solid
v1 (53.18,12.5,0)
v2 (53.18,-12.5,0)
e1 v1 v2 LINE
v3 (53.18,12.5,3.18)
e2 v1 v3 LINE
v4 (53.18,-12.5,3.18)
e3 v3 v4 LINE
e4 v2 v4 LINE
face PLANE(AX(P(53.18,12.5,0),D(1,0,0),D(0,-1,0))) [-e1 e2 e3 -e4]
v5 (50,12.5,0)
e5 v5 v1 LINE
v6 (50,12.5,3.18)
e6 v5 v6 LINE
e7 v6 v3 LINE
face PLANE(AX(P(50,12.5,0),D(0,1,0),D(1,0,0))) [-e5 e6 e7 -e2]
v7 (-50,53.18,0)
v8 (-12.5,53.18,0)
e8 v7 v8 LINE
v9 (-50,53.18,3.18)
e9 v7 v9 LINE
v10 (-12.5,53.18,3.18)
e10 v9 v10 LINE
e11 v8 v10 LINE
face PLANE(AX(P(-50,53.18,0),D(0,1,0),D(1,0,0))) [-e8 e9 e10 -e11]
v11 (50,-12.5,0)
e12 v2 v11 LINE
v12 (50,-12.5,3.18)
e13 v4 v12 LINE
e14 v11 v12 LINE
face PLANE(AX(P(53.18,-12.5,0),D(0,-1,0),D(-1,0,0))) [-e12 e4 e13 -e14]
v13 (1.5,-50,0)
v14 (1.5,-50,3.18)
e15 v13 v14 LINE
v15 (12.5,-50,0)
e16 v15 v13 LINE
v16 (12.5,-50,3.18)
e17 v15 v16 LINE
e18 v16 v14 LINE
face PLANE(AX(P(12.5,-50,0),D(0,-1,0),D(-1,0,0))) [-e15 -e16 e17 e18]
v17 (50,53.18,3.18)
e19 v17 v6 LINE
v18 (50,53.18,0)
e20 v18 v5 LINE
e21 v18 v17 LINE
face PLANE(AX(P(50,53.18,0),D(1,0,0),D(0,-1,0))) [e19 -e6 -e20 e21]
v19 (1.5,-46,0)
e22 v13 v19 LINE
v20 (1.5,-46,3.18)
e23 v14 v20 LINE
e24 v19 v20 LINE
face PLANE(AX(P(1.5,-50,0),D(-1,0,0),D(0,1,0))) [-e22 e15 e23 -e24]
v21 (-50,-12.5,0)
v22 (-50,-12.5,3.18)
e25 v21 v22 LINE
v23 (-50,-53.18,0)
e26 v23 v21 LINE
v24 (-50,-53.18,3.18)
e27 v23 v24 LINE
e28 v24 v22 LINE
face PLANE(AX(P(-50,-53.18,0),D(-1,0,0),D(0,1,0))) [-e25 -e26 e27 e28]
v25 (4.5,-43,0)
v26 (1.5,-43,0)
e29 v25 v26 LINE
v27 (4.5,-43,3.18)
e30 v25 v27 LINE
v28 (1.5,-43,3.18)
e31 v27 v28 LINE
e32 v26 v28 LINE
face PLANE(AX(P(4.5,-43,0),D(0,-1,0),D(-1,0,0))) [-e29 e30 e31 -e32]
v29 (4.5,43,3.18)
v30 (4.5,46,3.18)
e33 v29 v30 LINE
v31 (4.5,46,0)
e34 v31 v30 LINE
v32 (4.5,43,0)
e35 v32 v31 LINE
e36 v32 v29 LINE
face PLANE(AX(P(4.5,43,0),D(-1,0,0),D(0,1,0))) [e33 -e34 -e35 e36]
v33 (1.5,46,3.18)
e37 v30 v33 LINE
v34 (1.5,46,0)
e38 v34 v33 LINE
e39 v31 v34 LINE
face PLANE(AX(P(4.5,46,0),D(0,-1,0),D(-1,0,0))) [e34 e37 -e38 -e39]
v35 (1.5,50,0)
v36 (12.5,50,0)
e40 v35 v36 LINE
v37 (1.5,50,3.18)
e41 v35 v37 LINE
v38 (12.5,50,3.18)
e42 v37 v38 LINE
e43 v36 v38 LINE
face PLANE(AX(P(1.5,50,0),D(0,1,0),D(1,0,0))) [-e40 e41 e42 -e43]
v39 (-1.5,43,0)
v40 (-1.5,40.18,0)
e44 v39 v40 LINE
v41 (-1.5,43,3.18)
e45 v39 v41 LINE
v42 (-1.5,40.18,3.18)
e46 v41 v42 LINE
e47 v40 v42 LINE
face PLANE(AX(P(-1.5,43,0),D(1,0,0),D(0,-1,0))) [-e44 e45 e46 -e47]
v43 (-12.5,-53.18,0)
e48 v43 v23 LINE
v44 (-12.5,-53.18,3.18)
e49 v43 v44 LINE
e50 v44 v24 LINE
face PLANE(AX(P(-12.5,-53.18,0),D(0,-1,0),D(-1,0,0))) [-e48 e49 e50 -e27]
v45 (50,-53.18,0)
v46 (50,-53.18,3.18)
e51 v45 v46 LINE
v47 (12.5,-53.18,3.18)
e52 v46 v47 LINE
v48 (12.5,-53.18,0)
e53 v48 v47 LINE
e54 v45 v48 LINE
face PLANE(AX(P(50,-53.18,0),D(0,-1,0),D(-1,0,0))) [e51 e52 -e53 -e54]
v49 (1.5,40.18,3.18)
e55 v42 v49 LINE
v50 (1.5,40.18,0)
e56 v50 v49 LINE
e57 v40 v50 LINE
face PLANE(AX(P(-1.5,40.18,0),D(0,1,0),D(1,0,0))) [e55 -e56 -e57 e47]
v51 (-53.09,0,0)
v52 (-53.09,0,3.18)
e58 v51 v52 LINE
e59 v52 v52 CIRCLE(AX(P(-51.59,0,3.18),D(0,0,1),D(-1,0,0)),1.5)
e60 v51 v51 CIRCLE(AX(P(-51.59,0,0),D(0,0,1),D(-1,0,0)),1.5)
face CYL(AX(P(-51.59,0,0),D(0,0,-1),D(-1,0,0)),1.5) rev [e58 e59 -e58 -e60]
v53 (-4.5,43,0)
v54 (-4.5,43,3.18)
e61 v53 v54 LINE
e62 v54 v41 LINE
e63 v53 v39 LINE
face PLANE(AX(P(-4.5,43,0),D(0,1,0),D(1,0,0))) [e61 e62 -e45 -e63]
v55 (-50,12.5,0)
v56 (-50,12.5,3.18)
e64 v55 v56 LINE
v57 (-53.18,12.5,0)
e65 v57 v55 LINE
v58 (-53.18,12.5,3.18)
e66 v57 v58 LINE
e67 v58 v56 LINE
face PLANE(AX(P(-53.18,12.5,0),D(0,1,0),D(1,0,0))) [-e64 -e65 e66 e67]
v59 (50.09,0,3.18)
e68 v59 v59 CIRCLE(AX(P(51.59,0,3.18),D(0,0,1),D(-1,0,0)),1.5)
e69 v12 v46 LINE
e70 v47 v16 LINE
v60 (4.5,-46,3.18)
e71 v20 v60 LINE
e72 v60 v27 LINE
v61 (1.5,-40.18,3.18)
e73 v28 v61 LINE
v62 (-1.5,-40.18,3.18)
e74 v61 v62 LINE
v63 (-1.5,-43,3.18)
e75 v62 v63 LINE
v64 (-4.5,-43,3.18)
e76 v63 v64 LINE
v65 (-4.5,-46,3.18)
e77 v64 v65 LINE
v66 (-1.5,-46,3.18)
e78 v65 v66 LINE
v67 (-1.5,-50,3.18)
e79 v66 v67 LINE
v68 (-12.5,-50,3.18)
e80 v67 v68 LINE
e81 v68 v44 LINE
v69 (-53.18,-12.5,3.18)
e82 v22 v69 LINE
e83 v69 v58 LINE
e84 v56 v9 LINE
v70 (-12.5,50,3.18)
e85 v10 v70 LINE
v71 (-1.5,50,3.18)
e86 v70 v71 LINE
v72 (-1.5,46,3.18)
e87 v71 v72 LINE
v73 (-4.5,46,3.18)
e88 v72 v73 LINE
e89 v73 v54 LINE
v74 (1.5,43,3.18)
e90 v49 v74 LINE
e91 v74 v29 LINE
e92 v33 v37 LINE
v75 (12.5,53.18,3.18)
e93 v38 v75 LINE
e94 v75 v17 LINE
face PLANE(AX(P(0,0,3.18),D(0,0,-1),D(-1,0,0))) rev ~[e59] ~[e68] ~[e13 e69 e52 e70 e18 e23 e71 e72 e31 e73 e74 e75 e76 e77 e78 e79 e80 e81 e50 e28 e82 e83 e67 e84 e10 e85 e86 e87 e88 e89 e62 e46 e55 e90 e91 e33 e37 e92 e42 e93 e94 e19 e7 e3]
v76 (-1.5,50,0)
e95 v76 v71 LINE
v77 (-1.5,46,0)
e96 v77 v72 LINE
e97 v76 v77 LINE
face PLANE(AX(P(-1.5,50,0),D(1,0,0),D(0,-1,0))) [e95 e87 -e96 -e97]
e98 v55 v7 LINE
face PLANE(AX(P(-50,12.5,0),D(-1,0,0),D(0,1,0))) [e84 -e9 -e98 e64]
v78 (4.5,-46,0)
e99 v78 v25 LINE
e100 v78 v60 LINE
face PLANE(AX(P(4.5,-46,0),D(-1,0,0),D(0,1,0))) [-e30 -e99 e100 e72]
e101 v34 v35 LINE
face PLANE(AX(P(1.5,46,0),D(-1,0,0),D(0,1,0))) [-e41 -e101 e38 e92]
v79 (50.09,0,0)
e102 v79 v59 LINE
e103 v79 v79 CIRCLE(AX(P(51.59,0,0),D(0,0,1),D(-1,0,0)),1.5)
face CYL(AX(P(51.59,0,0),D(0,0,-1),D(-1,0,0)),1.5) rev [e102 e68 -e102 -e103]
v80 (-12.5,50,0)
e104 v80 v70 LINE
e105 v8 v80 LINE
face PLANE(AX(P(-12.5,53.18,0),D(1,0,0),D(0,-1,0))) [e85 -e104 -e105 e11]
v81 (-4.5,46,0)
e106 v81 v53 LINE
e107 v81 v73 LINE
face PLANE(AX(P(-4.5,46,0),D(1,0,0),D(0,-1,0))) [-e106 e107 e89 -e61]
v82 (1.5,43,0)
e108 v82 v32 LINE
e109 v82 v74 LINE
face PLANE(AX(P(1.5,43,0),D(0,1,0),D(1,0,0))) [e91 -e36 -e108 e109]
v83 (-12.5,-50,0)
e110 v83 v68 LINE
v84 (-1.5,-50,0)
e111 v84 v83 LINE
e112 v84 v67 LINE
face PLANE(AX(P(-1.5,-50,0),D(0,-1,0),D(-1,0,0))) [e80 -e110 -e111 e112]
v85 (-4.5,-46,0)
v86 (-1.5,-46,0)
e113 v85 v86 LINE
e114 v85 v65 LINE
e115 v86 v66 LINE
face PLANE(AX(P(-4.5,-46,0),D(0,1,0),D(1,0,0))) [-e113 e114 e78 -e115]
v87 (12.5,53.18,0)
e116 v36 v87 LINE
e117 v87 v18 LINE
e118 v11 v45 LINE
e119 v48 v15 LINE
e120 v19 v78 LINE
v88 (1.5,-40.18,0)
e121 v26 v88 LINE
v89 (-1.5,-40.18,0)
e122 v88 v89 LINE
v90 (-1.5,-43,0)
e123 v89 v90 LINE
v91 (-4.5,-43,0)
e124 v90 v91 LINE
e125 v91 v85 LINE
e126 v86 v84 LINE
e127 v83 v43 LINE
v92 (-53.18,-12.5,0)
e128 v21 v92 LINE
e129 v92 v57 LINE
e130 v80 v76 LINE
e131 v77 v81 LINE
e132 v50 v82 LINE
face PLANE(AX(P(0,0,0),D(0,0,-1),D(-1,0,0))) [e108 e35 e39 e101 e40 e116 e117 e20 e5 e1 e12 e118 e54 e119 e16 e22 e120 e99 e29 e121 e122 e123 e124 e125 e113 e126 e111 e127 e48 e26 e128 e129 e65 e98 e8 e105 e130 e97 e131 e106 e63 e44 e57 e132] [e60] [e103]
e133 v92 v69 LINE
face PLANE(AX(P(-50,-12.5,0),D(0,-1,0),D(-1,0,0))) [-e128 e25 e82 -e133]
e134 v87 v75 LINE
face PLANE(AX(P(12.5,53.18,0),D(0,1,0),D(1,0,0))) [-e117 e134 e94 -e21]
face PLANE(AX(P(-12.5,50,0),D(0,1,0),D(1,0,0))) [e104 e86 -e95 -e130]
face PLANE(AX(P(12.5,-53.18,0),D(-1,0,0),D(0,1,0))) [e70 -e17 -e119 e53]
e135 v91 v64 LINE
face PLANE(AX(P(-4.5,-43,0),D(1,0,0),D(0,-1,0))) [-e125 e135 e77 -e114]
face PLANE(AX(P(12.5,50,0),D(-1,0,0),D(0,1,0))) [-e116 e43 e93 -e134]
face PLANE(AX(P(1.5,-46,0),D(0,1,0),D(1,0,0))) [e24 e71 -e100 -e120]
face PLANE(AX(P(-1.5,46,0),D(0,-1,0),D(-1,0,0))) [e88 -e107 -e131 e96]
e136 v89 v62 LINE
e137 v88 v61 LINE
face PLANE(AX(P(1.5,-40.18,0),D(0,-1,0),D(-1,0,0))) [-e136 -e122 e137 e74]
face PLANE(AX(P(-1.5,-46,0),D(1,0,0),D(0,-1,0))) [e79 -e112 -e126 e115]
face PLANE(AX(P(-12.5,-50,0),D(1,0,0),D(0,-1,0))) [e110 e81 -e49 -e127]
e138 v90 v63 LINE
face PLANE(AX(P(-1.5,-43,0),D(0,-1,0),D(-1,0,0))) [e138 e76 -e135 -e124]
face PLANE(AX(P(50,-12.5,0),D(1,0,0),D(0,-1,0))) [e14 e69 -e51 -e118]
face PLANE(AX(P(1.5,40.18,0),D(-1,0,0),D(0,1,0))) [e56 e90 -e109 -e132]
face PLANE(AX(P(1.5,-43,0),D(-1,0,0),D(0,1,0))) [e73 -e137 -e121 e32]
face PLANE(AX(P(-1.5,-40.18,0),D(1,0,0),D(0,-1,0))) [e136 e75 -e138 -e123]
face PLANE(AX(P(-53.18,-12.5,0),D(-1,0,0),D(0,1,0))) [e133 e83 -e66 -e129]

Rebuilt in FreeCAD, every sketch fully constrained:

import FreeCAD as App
import Part
import Sketcher

V = App.Vector


def add_polygon(sketch, points):
    """Adds a closed chain of lines whose ends are joined by coincident constraints."""
    first, n = sketch.GeometryCount, len(points)
    for a, b in zip(points, points[1:] + points[:1]):
        sketch.addGeometry(Part.LineSegment(App.Vector(*a, 0), App.Vector(*b, 0)), False)
    for i in range(n):
        sketch.addConstraint(Sketcher.Constraint("Coincident", first + i, 2, first + (i + 1) % n, 1))

doc = App.newDocument("Part")
params = doc.addObject("Spreadsheet::Sheet", "Params")
for row, (alias, value) in enumerate([
    ("sketch1_diameter", "3 mm"),
    ("sketch1_width", "11 mm"),
    ("sketch1_width2", "3 mm"),
    ("sketch1_height", "25 mm"),
    ("sketch1_height2", "4 mm"),
    ("pad1_length", "3.18 mm"),
], start=1):
    params.set(f"A{row}", alias)
    params.set(f"B{row}", "=" + value)
    params.setAlias(f"B{row}", alias)

body = doc.addObject("PartDesign::Body", "Body")

sketch1 = body.newObject("Sketcher::SketchObject", "Sketch")
sketch1.AttachmentSupport = (doc.getObject("XY_Plane"), [""])
sketch1.MapMode = "FlatFace"
add_polygon(sketch1, [(-12.5, 53.2), (-50, 53.2), (-50, 12.5), (-53.2, 12.5), (-53.2, -12.5), (-50, -12.5), (-50, -53.2), (-12.5, -53.2), (-12.5, -50), (-1.5, -50), (-1.5, -46), (-4.5, -46), (-4.5, -43), (-1.5, -43), (-1.5, -40.2), (1.5, -40.2), (1.5, -43), (4.5, -43), (4.5, -46), (1.5, -46), (1.5, -50), (12.5, -50), (12.5, -53.2), (50, -53.2), (50, -12.5), (53.2, -12.5), (53.2, 12.5), (50, 12.5), (50, 53.2), (12.5, 53.2), (12.5, 50), (1.5, 50), (1.5, 46), (4.5, 46), (4.5, 43), (1.5, 43), (1.5, 40.2), (-1.5, 40.2), (-1.5, 43), (-4.5, 43), (-4.5, 46), (-1.5, 46), (-1.5, 50), (-12.5, 50)])
sketch1.addGeometry(Part.Circle(V(51.6, 0, 0), V(0, 0, 1), 1.5), False)
sketch1.addGeometry(Part.Circle(V(-51.6, 0, 0), V(0, 0, 1), 1.5), False)
sketch1.addConstraint(Sketcher.Constraint("Horizontal", 0))
sketch1.addConstraint(Sketcher.Constraint("Vertical", 1))
sketch1.addConstraint(Sketcher.Constraint("Horizontal", 2))
sketch1.addConstraint(Sketcher.Constraint("Vertical", 3))
sketch1.addConstraint(Sketcher.Constraint("Horizontal", 4))
sketch1.addConstraint(Sketcher.Constraint("Vertical", 5))
sketch1.addConstraint(Sketcher.Constraint("Horizontal", 6))
sketch1.addConstraint(Sketcher.Constraint("Vertical", 7))
sketch1.addConstraint(Sketcher.Constraint("Horizontal", 8))
sketch1.addConstraint(Sketcher.Constraint("Vertical", 9))
sketch1.addConstraint(Sketcher.Constraint("Horizontal", 10))
sketch1.addConstraint(Sketcher.Constraint("Vertical", 11))
sketch1.addConstraint(Sketcher.Constraint("Horizontal", 12))
sketch1.addConstraint(Sketcher.Constraint("Vertical", 13))
sketch1.addConstraint(Sketcher.Constraint("Horizontal", 14))
sketch1.addConstraint(Sketcher.Constraint("Vertical", 15))
sketch1.addConstraint(Sketcher.Constraint("Horizontal", 16))
sketch1.addConstraint(Sketcher.Constraint("Vertical", 17))
sketch1.addConstraint(Sketcher.Constraint("Horizontal", 18))
sketch1.addConstraint(Sketcher.Constraint("Vertical", 19))
sketch1.addConstraint(Sketcher.Constraint("Horizontal", 20))
sketch1.addConstraint(Sketcher.Constraint("Vertical", 21))
sketch1.addConstraint(Sketcher.Constraint("Horizontal", 22))
sketch1.addConstraint(Sketcher.Constraint("Vertical", 23))
sketch1.addConstraint(Sketcher.Constraint("Horizontal", 24))
sketch1.addConstraint(Sketcher.Constraint("Vertical", 25))
sketch1.addConstraint(Sketcher.Constraint("Horizontal", 26))
sketch1.addConstraint(Sketcher.Constraint("Vertical", 27))
sketch1.addConstraint(Sketcher.Constraint("Horizontal", 28))
sketch1.addConstraint(Sketcher.Constraint("Vertical", 29))
sketch1.addConstraint(Sketcher.Constraint("Horizontal", 30))
sketch1.addConstraint(Sketcher.Constraint("Vertical", 31))
sketch1.addConstraint(Sketcher.Constraint("Horizontal", 32))
sketch1.addConstraint(Sketcher.Constraint("Vertical", 33))
sketch1.addConstraint(Sketcher.Constraint("Horizontal", 34))
sketch1.addConstraint(Sketcher.Constraint("Vertical", 35))
sketch1.addConstraint(Sketcher.Constraint("Horizontal", 36))
sketch1.addConstraint(Sketcher.Constraint("Vertical", 37))
sketch1.addConstraint(Sketcher.Constraint("Horizontal", 38))
sketch1.addConstraint(Sketcher.Constraint("Vertical", 39))
sketch1.addConstraint(Sketcher.Constraint("Horizontal", 40))
sketch1.addConstraint(Sketcher.Constraint("Vertical", 41))
sketch1.addConstraint(Sketcher.Constraint("Horizontal", 42))
sketch1.addConstraint(Sketcher.Constraint("Vertical", 43))
sketch1.addConstraint(Sketcher.Constraint("Equal", 44, 45))
sketch1.addConstraint(Sketcher.Constraint("Symmetric", 44, 3, 45, 3, -1, 1))
sketch1.addConstraint(Sketcher.Constraint("Symmetric", 0, 2, 22, 2, -1, 1))
sketch1.addConstraint(Sketcher.Constraint("Symmetric", 2, 2, 24, 2, -1, 1))
sketch1.addConstraint(Sketcher.Constraint("Symmetric", 4, 2, 26, 2, -1, 1))
sketch1.addConstraint(Sketcher.Constraint("Symmetric", 6, 2, 28, 2, -1, 1))
sketch1.addConstraint(Sketcher.Constraint("Symmetric", 8, 2, 30, 2, -1, 1))
sketch1.addConstraint(Sketcher.Constraint("Symmetric", 10, 2, 32, 2, -1, 1))
sketch1.addConstraint(Sketcher.Constraint("Symmetric", 12, 2, 34, 2, -1, 1))
sketch1.addConstraint(Sketcher.Constraint("Symmetric", 14, 2, 36, 2, -1, 1))
sketch1.addConstraint(Sketcher.Constraint("Symmetric", 16, 2, 38, 2, -1, 1))
sketch1.addConstraint(Sketcher.Constraint("Symmetric", 18, 2, 40, 2, -1, 1))
sketch1.addConstraint(Sketcher.Constraint("Symmetric", 20, 2, 42, 2, -1, 1))
sketch1.addConstraint(Sketcher.Constraint("Symmetric", 12, 2, 15, 2, -2))
sketch1.addConstraint(Sketcher.Constraint("Symmetric", 10, 2, 17, 2, -2))
sketch1.addConstraint(Sketcher.Constraint("Symmetric", 8, 2, 19, 2, -2))
sketch1.addConstraint(Sketcher.Constraint("Symmetric", 6, 2, 21, 2, -2))
sketch1.addConstraint(Sketcher.Constraint("Symmetric", 4, 2, 23, 2, -2))
sketch1.addConstraint(Sketcher.Constraint("PointOnObject", 44, 3, -1))
sketch1.addConstraint(Sketcher.Constraint("Vertical", 9, 2, 12, 2))
sketch1.addConstraint(Sketcher.Constraint("Equal", 12, 14))
sketch1.addConstraint(Sketcher.Constraint("Equal", 26, 7))
sketch1.addConstraint(Sketcher.Constraint("Equal", 40, 11))
sketch1.addConstraint(Sketcher.Constraint("Diameter", 44, 3.0))
sketch1.addConstraint(Sketcher.Constraint("DistanceX", 8, 1, 8, 2, 11.0))
sketch1.addConstraint(Sketcher.Constraint("DistanceX", 10, 2, 10, 1, 3.0))
sketch1.addConstraint(Sketcher.Constraint("DistanceY", 3, 2, 3, 1, 25.0))
sketch1.addConstraint(Sketcher.Constraint("DistanceY", 9, 1, 9, 2, 4.0))
sketch1.addConstraint(Sketcher.Constraint("DistanceX", 0, 2, 0, 1, 37.5))
sketch1.addConstraint(Sketcher.Constraint("DistanceY", 7, 2, -1, 1, 50.0))
sketch1.addConstraint(Sketcher.Constraint("DistanceX", 2, 2, 2, 1, 3.18))
sketch1.addConstraint(Sketcher.Constraint("DistanceY", 13, 1, 13, 2, 2.82))
sketch1.addConstraint(Sketcher.Constraint("DistanceX", -1, 1, 44, 3, 51.59))
sketch1.setExpression("Constraints[111]", "Params.sketch1_diameter")
sketch1.setExpression("Constraints[112]", "Params.sketch1_width")
sketch1.setExpression("Constraints[113]", "Params.sketch1_width2")
sketch1.setExpression("Constraints[114]", "Params.sketch1_height")
sketch1.setExpression("Constraints[115]", "Params.sketch1_height2")
pad1 = body.newObject("PartDesign::Pad", "Pad")
pad1.Profile = sketch1
pad1.setExpression("Length", "Params.pad1_length")

doc.recompute()
